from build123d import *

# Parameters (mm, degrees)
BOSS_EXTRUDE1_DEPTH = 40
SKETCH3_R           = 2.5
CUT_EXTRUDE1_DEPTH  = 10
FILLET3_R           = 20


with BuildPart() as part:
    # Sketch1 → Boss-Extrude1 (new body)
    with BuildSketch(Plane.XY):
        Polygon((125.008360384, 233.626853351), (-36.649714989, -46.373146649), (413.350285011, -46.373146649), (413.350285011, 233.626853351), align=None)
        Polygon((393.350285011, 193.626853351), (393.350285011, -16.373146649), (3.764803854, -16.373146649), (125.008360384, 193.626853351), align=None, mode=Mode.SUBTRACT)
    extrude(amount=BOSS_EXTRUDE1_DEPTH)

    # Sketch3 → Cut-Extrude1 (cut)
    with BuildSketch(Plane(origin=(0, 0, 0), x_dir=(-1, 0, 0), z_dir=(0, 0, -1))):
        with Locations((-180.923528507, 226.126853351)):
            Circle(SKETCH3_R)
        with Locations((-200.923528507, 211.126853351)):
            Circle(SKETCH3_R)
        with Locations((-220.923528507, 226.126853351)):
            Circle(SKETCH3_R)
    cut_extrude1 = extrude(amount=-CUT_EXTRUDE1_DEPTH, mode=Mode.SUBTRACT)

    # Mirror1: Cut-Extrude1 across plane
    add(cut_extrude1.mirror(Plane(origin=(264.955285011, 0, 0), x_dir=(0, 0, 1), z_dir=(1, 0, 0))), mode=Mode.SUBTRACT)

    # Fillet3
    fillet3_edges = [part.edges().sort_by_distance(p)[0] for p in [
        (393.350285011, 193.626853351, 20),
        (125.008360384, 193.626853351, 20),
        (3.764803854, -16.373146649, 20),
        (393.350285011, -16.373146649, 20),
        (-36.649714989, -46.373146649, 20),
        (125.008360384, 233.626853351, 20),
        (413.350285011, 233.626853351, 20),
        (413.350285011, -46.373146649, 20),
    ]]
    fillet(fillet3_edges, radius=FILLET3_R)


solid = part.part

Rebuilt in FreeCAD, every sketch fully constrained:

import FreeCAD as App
import Part
import Sketcher
from FreeCAD import Vector
Q = App.Units.Quantity


def edges_at(feature, points):
    """Names of the edges that pass closest to the given points."""
    edges = feature.Shape.Edges
    near = lambda p: min(range(len(edges)), key=lambda i: edges[i].distToShape(Part.Vertex(*p))[0])
    return sorted({f"Edge{near(p) + 1}" for p in points})

doc = App.newDocument("Part")
params = doc.addObject("Spreadsheet::Sheet", "Params")
for row, (alias, value) in enumerate([
    ("sketch1_width", "450 mm"),
    ("sketch1_height", "280 mm"),
    ("sketch1_height2", "210 mm"),
    ("pad1_length", "40 mm"),
    ("sketch2_diameter", "5 mm"),
    ("pocket1_length", "10 mm"),
    ("fillet_radius", "20 mm"),
], start=1):
    params.set(f"A{row}", alias)
    params.set(f"B{row}", "=" + value)
    params.setAlias(f"B{row}", alias)

body = doc.addObject("PartDesign::Body", "Body")

sketch1 = body.newObject("Sketcher::SketchObject", "Sketch")
sketch1.AttachmentSupport = (doc.getObject("XY_Plane"), [""])
sketch1.MapMode = "FlatFace"
sketch1.addGeometry(Part.LineSegment(Vector(125, 234, 0), Vector(-37, -46, 0)), False)
sketch1.addGeometry(Part.LineSegment(Vector(-37, -46, 0), Vector(413, -46, 0)), False)
sketch1.addGeometry(Part.LineSegment(Vector(413, -46, 0), Vector(413, 234, 0)), False)
sketch1.addGeometry(Part.LineSegment(Vector(413, 234, 0), Vector(125, 234, 0)), False)
sketch1.addGeometry(Part.LineSegment(Vector(125, 194, 0), Vector(393, 194, 0)), False)
sketch1.addGeometry(Part.LineSegment(Vector(393, 194, 0), Vector(393, -16, 0)), False)
sketch1.addGeometry(Part.LineSegment(Vector(393, -16, 0), Vector(4, -16, 0)), False)
sketch1.addGeometry(Part.LineSegment(Vector(4, -16, 0), Vector(125, 194, 0)), False)
sketch1.addConstraint(Sketcher.Constraint("Coincident", 0, 2, 1, 1))
sketch1.addConstraint(Sketcher.Constraint("Coincident", 1, 2, 2, 1))
sketch1.addConstraint(Sketcher.Constraint("Coincident", 2, 2, 3, 1))
sketch1.addConstraint(Sketcher.Constraint("Coincident", 3, 2, 0, 1))
sketch1.addConstraint(Sketcher.Constraint("Coincident", 4, 2, 5, 1))
sketch1.addConstraint(Sketcher.Constraint("Coincident", 5, 2, 6, 1))
sketch1.addConstraint(Sketcher.Constraint("Coincident", 6, 2, 7, 1))
sketch1.addConstraint(Sketcher.Constraint("Coincident", 7, 2, 4, 1))
sketch1.addConstraint(Sketcher.Constraint("Horizontal", 1))
sketch1.addConstraint(Sketcher.Constraint("Vertical", 2))
sketch1.addConstraint(Sketcher.Constraint("Horizontal", 3))
sketch1.addConstraint(Sketcher.Constraint("Horizontal", 4))
sketch1.addConstraint(Sketcher.Constraint("Vertical", 5))
sketch1.addConstraint(Sketcher.Constraint("Horizontal", 6))
sketch1.addConstraint(Sketcher.Constraint("Parallel", 0, 7))
sketch1.addConstraint(Sketcher.Constraint("Vertical", 3, 2, 7, 2))
sketch1.addConstraint(Sketcher.Constraint("DistanceX", 1, 1, 1, 2, Q("450 mm")))
sketch1.addConstraint(Sketcher.Constraint("DistanceY", 2, 1, 2, 2, Q("280 mm")))
sketch1.addConstraint(Sketcher.Constraint("DistanceY", 5, 2, 5, 1, Q("210 mm")))
sketch1.addConstraint(Sketcher.Constraint("Angle", 0, Q("-120 deg")))
sketch1.addConstraint(Sketcher.Constraint("DistanceX", 4, 2, 2, 2, Q("20 mm")))
sketch1.addConstraint(Sketcher.Constraint("DistanceY", 4, 2, 2, 2, Q("40 mm")))
sketch1.addConstraint(Sketcher.Constraint("DistanceX", -1, 1, 3, 2, Q("125.00836 mm")))
sketch1.addConstraint(Sketcher.Constraint("DistanceY", 0, 2, -1, 1, Q("46.373147 mm")))
sketch1.setExpression("Constraints[16]", "Params.sketch1_width")
sketch1.setExpression("Constraints[17]", "Params.sketch1_height")
sketch1.setExpression("Constraints[18]", "Params.sketch1_height2")
pad1 = body.newObject("PartDesign::Pad", "Pad")
pad1.Profile = sketch1
pad1.setExpression("Length", "Params.pad1_length")

sketch2 = body.newObject("Sketcher::SketchObject", "Sketch001")
sketch2.AttachmentSupport = (doc.getObject("XY_Plane"), [""])
sketch2.MapMode = "FlatFace"
sketch2.addGeometry(Part.Circle(Vector(180.9, 226.1, 0), Vector(0, 0, 1), 2.5), False)
sketch2.addGeometry(Part.Circle(Vector(200.9, 211.1, 0), Vector(0, 0, 1), 2.5), False)
sketch2.addGeometry(Part.Circle(Vector(220.9, 226.1, 0), Vector(0, 0, 1), 2.5), False)
sketch2.addConstraint(Sketcher.Constraint("Equal", 0, 1))
sketch2.addConstraint(Sketcher.Constraint("Equal", 1, 2))
sketch2.addConstraint(Sketcher.Constraint("Horizontal", 0, 3, 2, 3))
sketch2.addConstraint(Sketcher.Constraint("Diameter", 0, Q("5 mm")))
sketch2.addConstraint(Sketcher.Constraint("DistanceX", 0, 3, 1, 3, Q("20 mm")))
sketch2.addConstraint(Sketcher.Constraint("DistanceY", 1, 3, 0, 3, Q("15 mm")))
sketch2.addConstraint(Sketcher.Constraint("DistanceX", 1, 3, 2, 3, Q("20 mm")))
sketch2.addConstraint(Sketcher.Constraint("DistanceX", -1, 1, 0, 3, Q("180.923529 mm")))
sketch2.addConstraint(Sketcher.Constraint("DistanceY", -1, 1, 0, 3, Q("226.126853 mm")))
sketch2.setExpression("Constraints[3]", "Params.sketch2_diameter")
pocket1 = body.newObject("PartDesign::Pocket", "Pocket")
pocket1.Profile = sketch2
pocket1.setExpression("Length", "Params.pocket1_length")
pocket1.Reversed = True
doc.recompute()

datumplane = body.newObject("PartDesign::Plane", "DatumPlane")
datumplane.AttachmentSupport = (doc.getObject("YZ_Plane"), [""])
datumplane.MapMode = "FlatFace"
datumplane.AttachmentOffset = App.Placement(Vector(0, 0, 264.955285), App.Rotation())
mirrored = body.newObject("PartDesign::Mirrored", "Mirrored")
mirrored.Originals = [pocket1]
mirrored.MirrorPlane = (datumplane, [""])
body.Tip = mirrored
doc.recompute()

fillet = body.newObject("PartDesign::Fillet", "Fillet")
fillet.Base = (mirrored, edges_at(mirrored, [
    (393.35, 193.627, 20),
    (125.008, 193.627, 20),
    (3.765, -16.373, 20),
    (393.35, -16.373, 20),
    (-36.65, -46.373, 20),
    (125.008, 233.627, 20),
    (413.35, 233.627, 20),
    (413.35, -46.373, 20),
]))
fillet.setExpression("Radius", "Params.fillet_radius")

doc.recompute()
